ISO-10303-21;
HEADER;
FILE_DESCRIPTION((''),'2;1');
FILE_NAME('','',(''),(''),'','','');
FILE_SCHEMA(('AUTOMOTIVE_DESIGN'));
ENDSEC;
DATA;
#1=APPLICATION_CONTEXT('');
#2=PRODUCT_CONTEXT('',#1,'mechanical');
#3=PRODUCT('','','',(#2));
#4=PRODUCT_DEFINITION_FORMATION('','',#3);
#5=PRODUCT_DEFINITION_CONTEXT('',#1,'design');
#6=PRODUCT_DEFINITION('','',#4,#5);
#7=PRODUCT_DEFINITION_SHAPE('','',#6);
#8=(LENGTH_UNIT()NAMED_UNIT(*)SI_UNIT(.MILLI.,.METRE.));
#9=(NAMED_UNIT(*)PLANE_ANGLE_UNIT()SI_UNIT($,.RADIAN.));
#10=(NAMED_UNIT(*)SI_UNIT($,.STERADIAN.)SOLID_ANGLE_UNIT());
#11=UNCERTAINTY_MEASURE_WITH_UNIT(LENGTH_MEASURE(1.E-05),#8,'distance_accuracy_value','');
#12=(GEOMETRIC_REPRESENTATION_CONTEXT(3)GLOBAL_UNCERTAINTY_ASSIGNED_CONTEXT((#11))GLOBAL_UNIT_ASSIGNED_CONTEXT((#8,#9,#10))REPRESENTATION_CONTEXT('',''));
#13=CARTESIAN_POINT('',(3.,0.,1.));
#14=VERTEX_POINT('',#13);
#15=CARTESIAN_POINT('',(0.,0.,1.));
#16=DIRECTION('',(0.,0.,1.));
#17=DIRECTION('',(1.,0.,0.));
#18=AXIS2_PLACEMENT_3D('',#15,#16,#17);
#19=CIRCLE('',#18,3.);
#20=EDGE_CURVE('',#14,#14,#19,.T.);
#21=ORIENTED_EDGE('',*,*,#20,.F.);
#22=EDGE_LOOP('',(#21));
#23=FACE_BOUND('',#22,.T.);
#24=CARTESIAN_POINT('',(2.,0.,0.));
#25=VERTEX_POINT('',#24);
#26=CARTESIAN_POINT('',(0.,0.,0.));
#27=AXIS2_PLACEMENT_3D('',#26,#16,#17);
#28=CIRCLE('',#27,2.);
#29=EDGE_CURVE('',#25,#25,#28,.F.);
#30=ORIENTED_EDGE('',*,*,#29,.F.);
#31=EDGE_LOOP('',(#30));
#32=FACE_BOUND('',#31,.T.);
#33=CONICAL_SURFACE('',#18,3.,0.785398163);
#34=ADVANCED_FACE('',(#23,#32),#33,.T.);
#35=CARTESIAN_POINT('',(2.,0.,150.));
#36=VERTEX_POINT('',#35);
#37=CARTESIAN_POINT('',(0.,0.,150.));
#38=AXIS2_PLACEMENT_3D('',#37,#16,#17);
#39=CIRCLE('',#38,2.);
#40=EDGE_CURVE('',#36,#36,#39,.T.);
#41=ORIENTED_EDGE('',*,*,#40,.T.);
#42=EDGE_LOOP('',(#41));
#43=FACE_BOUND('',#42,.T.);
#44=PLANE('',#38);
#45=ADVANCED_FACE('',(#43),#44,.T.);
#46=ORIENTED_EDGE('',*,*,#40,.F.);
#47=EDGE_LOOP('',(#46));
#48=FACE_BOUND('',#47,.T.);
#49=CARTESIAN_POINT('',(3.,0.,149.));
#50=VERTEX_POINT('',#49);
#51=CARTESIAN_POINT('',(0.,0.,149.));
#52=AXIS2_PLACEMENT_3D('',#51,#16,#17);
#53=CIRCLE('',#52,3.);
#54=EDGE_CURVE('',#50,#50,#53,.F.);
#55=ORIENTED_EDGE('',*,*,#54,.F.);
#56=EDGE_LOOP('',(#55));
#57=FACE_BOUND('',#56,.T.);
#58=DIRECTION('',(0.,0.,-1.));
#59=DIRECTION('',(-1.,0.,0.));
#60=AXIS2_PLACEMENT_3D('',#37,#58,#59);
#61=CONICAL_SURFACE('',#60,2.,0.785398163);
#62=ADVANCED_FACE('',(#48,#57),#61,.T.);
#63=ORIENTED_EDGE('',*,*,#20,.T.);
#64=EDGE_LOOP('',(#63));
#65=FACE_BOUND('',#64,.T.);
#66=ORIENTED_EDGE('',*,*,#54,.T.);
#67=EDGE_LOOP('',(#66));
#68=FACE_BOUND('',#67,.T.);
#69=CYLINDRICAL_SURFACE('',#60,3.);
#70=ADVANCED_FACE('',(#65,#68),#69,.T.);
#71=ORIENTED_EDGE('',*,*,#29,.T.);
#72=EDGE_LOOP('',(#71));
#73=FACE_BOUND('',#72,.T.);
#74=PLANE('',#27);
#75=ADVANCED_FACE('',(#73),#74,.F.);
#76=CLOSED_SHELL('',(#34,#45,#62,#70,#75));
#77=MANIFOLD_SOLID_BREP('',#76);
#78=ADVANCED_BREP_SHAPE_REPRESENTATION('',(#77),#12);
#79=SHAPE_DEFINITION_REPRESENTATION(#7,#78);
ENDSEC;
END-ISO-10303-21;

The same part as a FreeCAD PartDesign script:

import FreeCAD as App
import Part
import Sketcher
Q = App.Units.Quantity


def edges_at(feature, points):
    """Names of the edges that pass closest to the given points."""
    edges = feature.Shape.Edges
    near = lambda p: min(range(len(edges)), key=lambda i: edges[i].distToShape(Part.Vertex(*p))[0])
    return sorted({f"Edge{near(p) + 1}" for p in points})

doc = App.newDocument("Part")
body = doc.addObject("PartDesign::Body", "Body")

sketch1 = body.newObject("Sketcher::SketchObject", "Sketch")
sketch1.AttachmentSupport = (doc.getObject("XY_Plane"), [""])
sketch1.MapMode = "FlatFace"
sketch1.addGeometry(Part.Circle(App.Vector(0, 0, 0), App.Vector(0, 0, 1), 3), False)
sketch1.addConstraint([
    Sketcher.Constraint("Coincident", 0, 3, -1, 1),
    Sketcher.Constraint("Diameter", 0, Q("6 mm")),
])
pad1 = body.newObject("PartDesign::Pad", "Pad")
pad1.Profile = sketch1
pad1.Length = 150
doc.recompute()

chamfer = body.newObject("PartDesign::Chamfer", "Chamfer")
chamfer.Base = (pad1, edges_at(pad1, [(-3, 0, 0), (-3, 0, 150)]))
chamfer.Size = 1

doc.recompute()
